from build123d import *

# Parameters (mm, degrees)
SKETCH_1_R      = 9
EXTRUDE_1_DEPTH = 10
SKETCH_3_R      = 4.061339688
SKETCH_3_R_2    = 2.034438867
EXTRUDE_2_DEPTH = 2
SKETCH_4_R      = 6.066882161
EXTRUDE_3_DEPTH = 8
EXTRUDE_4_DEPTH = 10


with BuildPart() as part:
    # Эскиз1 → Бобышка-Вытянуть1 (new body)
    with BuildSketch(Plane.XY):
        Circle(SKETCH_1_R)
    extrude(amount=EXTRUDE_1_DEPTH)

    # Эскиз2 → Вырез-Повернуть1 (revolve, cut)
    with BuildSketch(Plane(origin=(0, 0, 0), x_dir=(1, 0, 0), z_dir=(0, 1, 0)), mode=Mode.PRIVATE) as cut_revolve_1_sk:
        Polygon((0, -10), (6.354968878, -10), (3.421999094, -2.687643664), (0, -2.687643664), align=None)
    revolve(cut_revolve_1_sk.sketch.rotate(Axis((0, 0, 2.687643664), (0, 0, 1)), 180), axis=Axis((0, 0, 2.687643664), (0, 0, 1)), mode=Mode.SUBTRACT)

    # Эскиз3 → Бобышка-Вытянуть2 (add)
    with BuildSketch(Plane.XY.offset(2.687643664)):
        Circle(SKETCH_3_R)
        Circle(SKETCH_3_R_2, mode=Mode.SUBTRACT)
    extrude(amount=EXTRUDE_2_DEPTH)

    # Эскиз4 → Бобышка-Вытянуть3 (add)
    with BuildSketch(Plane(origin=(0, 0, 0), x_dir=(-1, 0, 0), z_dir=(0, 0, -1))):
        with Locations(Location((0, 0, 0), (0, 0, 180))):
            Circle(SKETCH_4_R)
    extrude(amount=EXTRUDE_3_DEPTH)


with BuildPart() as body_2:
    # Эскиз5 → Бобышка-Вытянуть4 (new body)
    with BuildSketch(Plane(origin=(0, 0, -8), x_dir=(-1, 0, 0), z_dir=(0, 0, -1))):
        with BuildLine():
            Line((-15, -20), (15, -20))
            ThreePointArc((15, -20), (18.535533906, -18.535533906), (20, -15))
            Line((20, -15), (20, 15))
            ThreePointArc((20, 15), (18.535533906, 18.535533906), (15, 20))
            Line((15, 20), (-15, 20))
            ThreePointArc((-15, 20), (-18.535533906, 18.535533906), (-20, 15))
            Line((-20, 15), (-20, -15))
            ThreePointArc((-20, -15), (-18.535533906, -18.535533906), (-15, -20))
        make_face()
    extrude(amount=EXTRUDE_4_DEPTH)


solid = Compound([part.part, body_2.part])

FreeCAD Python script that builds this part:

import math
import FreeCAD as App
import Part
import Sketcher

V = App.Vector


def add_polygon(sketch, points):
    """Adds a closed chain of lines whose ends are joined by coincident constraints."""
    first, n = sketch.GeometryCount, len(points)
    for a, b in zip(points, points[1:] + points[:1]):
        sketch.addGeometry(Part.LineSegment(App.Vector(*a, 0), App.Vector(*b, 0)), False)
    for i in range(n):
        sketch.addConstraint(Sketcher.Constraint("Coincident", first + i, 2, first + (i + 1) % n, 1))

doc = App.newDocument("Part")
params = doc.addObject("Spreadsheet::Sheet", "Params")
for row, (alias, value) in enumerate([
    ("sketch1_diameter", "18 mm"),
    ("pad1_length", "10 mm"),
    ("groove_angle", "360 deg"),
    ("pad2_length", "2 mm"),
    ("pad3_length", "8 mm"),
    ("sketch5_radius", "5 mm"),
    ("sketch5_width", "30 mm"),
    ("pad4_length", "10 mm"),
], start=1):
    params.set(f"A{row}", alias)
    params.set(f"B{row}", "=" + value)
    params.setAlias(f"B{row}", alias)

body = doc.addObject("PartDesign::Body", "Body")

# Sketch on XY plane
sketch1 = body.newObject("Sketcher::SketchObject", "Sketch")
sketch1.AttachmentSupport = (doc.getObject("XY_Plane"), [""])
sketch1.MapMode = "FlatFace"
sketch1.addGeometry(Part.Circle(V(0, 0, 0), V(0, 0, 1), 9), False)
sketch1.addConstraint(Sketcher.Constraint("Coincident", 0, 3, -1, 1))
sketch1.addConstraint(Sketcher.Constraint("Diameter", 0, 18.0))
sketch1.setExpression("Constraints[1]", "Params.sketch1_diameter")
pad1 = body.newObject("PartDesign::Pad", "Pad")
pad1.Profile = sketch1
pad1.setExpression("Length", "Params.pad1_length")

# Sketch on XZ plane
sketch2 = body.newObject("Sketcher::SketchObject", "Sketch001")
sketch2.AttachmentSupport = (doc.getObject("XZ_Plane"), [""])
sketch2.MapMode = "FlatFace"
add_polygon(sketch2, [(0, 10), (6.4, 10), (3.4, 2.7), (0, 2.7)])  # lines 0-3
sketch2.addConstraint(Sketcher.Constraint("Horizontal", 0))
sketch2.addConstraint(Sketcher.Constraint("Horizontal", 2))
sketch2.addConstraint(Sketcher.Constraint("Vertical", 3))
sketch2.addConstraint(Sketcher.Constraint("PointOnObject", 2, 2, -2))
sketch2.addConstraint(Sketcher.Constraint("DistanceY", -1, 1, 0, 2, 10.0))
sketch2.addConstraint(Sketcher.Constraint("DistanceX", 2, 2, 2, 1, 3.421999))
sketch2.addConstraint(Sketcher.Constraint("DistanceX", 0, 1, 0, 2, 6.354969))
sketch2.addConstraint(Sketcher.Constraint("DistanceY", 3, 1, 3, 2, 7.312356))
groove = body.newObject("PartDesign::Groove", "Groove")
groove.Profile = sketch2
groove.ReferenceAxis = (sketch2, ["V_Axis"])
groove.setExpression("Angle", "Params.groove_angle")

# Sketch on XY plane
sketch3 = body.newObject("Sketcher::SketchObject", "Sketch002")
sketch3.AttachmentSupport = (doc.getObject("XY_Plane"), [""])
sketch3.MapMode = "FlatFace"
sketch3.AttachmentOffset = App.Placement(V(0, 0, 2.687644), App.Rotation())
sketch3.addGeometry(Part.Circle(V(0, 0, 0), V(0, 0, 1), 4.1), False)
sketch3.addGeometry(Part.Circle(V(0, 0, 0), V(0, 0, 1), 2), False)
sketch3.addConstraint(Sketcher.Constraint("Coincident", 0, 3, -1, 1))
sketch3.addConstraint(Sketcher.Constraint("Coincident", 1, 3, -1, 1))
sketch3.addConstraint(Sketcher.Constraint("Diameter", 0, 8.122679))
sketch3.addConstraint(Sketcher.Constraint("Diameter", 1, 4.068878))
pad2 = body.newObject("PartDesign::Pad", "Pad001")
pad2.Profile = sketch3
pad2.setExpression("Length", "Params.pad2_length")

# Sketch on XY plane
sketch4 = body.newObject("Sketcher::SketchObject", "Sketch003")
sketch4.AttachmentSupport = (doc.getObject("XY_Plane"), [""])
sketch4.MapMode = "FlatFace"
sketch4.addGeometry(Part.Circle(V(0, 0, 0), V(0, 0, 1), 6), False)
sketch4.addConstraint(Sketcher.Constraint("Coincident", 0, 3, -1, 1))
sketch4.addConstraint(Sketcher.Constraint("Diameter", 0, 12.133764))
pad3 = body.newObject("PartDesign::Pad", "Pad002")
pad3.Profile = sketch4
pad3.setExpression("Length", "Params.pad3_length")
pad3.Reversed = True
body2 = doc.addObject("PartDesign::Body", "Body001")

# Sketch on XY plane
sketch5 = body2.newObject("Sketcher::SketchObject", "Sketch004")
sketch5.AttachmentSupport = (doc.getObject("XY_Plane001"), [""])
sketch5.MapMode = "FlatFace"
sketch5.AttachmentOffset = App.Placement(V(0, 0, -8), App.Rotation())
sketch5.addGeometry(Part.LineSegment(V(15, -20, 0), V(-15, -20, 0)), False)
sketch5.addGeometry(Part.ArcOfCircle(Part.Circle(V(-15, -15, 0), V(0, 0, 1), 5), math.radians(180), math.radians(270)), False)
sketch5.addGeometry(Part.LineSegment(V(-20, -15, 0), V(-20, 15, 0)), False)
sketch5.addGeometry(Part.ArcOfCircle(Part.Circle(V(-15, 15, 0), V(0, 0, 1), 5), math.radians(90), math.radians(180)), False)
sketch5.addGeometry(Part.LineSegment(V(-15, 20, 0), V(15, 20, 0)), False)
sketch5.addGeometry(Part.ArcOfCircle(Part.Circle(V(15, 15, 0), V(0, 0, 1), 5), math.radians(0), math.radians(90)), False)
sketch5.addGeometry(Part.LineSegment(V(20, 15, 0), V(20, -15, 0)), False)
sketch5.addGeometry(Part.ArcOfCircle(Part.Circle(V(15, -15, 0), V(0, 0, 1), 5), math.radians(-90), math.radians(0)), False)
sketch5.addConstraint(Sketcher.Constraint("Tangent", 0, 2, 1, 2))
sketch5.addConstraint(Sketcher.Constraint("Tangent", 1, 1, 2, 1))
sketch5.addConstraint(Sketcher.Constraint("Tangent", 2, 2, 3, 2))
sketch5.addConstraint(Sketcher.Constraint("Tangent", 3, 1, 4, 1))
sketch5.addConstraint(Sketcher.Constraint("Tangent", 4, 2, 5, 2))
sketch5.addConstraint(Sketcher.Constraint("Tangent", 5, 1, 6, 1))
sketch5.addConstraint(Sketcher.Constraint("Tangent", 6, 2, 7, 2))
sketch5.addConstraint(Sketcher.Constraint("Tangent", 7, 1, 0, 1))
sketch5.addConstraint(Sketcher.Constraint("Horizontal", 0))
sketch5.addConstraint(Sketcher.Constraint("Vertical", 2))
sketch5.addConstraint(Sketcher.Constraint("Horizontal", 4))
sketch5.addConstraint(Sketcher.Constraint("Vertical", 6))
sketch5.addConstraint(Sketcher.Constraint("Equal", 1, 3))
sketch5.addConstraint(Sketcher.Constraint("Equal", 3, 5))
sketch5.addConstraint(Sketcher.Constraint("Equal", 5, 7))
sketch5.addConstraint(Sketcher.Constraint("Symmetric", 1, 3, 5, 3, -1, 1))
sketch5.addConstraint(Sketcher.Constraint("Equal", 4, 2))
sketch5.addConstraint(Sketcher.Constraint("Radius", 1, 5.0))
sketch5.addConstraint(Sketcher.Constraint("DistanceX", 0, 2, 0, 1, 30.0))
sketch5.setExpression("Constraints[17]", "Params.sketch5_radius")
sketch5.setExpression("Constraints[18]", "Params.sketch5_width")
pad4 = body2.newObject("PartDesign::Pad", "Pad003")
pad4.Profile = sketch5
pad4.setExpression("Length", "Params.pad4_length")
pad4.Reversed = True

doc.recompute()
